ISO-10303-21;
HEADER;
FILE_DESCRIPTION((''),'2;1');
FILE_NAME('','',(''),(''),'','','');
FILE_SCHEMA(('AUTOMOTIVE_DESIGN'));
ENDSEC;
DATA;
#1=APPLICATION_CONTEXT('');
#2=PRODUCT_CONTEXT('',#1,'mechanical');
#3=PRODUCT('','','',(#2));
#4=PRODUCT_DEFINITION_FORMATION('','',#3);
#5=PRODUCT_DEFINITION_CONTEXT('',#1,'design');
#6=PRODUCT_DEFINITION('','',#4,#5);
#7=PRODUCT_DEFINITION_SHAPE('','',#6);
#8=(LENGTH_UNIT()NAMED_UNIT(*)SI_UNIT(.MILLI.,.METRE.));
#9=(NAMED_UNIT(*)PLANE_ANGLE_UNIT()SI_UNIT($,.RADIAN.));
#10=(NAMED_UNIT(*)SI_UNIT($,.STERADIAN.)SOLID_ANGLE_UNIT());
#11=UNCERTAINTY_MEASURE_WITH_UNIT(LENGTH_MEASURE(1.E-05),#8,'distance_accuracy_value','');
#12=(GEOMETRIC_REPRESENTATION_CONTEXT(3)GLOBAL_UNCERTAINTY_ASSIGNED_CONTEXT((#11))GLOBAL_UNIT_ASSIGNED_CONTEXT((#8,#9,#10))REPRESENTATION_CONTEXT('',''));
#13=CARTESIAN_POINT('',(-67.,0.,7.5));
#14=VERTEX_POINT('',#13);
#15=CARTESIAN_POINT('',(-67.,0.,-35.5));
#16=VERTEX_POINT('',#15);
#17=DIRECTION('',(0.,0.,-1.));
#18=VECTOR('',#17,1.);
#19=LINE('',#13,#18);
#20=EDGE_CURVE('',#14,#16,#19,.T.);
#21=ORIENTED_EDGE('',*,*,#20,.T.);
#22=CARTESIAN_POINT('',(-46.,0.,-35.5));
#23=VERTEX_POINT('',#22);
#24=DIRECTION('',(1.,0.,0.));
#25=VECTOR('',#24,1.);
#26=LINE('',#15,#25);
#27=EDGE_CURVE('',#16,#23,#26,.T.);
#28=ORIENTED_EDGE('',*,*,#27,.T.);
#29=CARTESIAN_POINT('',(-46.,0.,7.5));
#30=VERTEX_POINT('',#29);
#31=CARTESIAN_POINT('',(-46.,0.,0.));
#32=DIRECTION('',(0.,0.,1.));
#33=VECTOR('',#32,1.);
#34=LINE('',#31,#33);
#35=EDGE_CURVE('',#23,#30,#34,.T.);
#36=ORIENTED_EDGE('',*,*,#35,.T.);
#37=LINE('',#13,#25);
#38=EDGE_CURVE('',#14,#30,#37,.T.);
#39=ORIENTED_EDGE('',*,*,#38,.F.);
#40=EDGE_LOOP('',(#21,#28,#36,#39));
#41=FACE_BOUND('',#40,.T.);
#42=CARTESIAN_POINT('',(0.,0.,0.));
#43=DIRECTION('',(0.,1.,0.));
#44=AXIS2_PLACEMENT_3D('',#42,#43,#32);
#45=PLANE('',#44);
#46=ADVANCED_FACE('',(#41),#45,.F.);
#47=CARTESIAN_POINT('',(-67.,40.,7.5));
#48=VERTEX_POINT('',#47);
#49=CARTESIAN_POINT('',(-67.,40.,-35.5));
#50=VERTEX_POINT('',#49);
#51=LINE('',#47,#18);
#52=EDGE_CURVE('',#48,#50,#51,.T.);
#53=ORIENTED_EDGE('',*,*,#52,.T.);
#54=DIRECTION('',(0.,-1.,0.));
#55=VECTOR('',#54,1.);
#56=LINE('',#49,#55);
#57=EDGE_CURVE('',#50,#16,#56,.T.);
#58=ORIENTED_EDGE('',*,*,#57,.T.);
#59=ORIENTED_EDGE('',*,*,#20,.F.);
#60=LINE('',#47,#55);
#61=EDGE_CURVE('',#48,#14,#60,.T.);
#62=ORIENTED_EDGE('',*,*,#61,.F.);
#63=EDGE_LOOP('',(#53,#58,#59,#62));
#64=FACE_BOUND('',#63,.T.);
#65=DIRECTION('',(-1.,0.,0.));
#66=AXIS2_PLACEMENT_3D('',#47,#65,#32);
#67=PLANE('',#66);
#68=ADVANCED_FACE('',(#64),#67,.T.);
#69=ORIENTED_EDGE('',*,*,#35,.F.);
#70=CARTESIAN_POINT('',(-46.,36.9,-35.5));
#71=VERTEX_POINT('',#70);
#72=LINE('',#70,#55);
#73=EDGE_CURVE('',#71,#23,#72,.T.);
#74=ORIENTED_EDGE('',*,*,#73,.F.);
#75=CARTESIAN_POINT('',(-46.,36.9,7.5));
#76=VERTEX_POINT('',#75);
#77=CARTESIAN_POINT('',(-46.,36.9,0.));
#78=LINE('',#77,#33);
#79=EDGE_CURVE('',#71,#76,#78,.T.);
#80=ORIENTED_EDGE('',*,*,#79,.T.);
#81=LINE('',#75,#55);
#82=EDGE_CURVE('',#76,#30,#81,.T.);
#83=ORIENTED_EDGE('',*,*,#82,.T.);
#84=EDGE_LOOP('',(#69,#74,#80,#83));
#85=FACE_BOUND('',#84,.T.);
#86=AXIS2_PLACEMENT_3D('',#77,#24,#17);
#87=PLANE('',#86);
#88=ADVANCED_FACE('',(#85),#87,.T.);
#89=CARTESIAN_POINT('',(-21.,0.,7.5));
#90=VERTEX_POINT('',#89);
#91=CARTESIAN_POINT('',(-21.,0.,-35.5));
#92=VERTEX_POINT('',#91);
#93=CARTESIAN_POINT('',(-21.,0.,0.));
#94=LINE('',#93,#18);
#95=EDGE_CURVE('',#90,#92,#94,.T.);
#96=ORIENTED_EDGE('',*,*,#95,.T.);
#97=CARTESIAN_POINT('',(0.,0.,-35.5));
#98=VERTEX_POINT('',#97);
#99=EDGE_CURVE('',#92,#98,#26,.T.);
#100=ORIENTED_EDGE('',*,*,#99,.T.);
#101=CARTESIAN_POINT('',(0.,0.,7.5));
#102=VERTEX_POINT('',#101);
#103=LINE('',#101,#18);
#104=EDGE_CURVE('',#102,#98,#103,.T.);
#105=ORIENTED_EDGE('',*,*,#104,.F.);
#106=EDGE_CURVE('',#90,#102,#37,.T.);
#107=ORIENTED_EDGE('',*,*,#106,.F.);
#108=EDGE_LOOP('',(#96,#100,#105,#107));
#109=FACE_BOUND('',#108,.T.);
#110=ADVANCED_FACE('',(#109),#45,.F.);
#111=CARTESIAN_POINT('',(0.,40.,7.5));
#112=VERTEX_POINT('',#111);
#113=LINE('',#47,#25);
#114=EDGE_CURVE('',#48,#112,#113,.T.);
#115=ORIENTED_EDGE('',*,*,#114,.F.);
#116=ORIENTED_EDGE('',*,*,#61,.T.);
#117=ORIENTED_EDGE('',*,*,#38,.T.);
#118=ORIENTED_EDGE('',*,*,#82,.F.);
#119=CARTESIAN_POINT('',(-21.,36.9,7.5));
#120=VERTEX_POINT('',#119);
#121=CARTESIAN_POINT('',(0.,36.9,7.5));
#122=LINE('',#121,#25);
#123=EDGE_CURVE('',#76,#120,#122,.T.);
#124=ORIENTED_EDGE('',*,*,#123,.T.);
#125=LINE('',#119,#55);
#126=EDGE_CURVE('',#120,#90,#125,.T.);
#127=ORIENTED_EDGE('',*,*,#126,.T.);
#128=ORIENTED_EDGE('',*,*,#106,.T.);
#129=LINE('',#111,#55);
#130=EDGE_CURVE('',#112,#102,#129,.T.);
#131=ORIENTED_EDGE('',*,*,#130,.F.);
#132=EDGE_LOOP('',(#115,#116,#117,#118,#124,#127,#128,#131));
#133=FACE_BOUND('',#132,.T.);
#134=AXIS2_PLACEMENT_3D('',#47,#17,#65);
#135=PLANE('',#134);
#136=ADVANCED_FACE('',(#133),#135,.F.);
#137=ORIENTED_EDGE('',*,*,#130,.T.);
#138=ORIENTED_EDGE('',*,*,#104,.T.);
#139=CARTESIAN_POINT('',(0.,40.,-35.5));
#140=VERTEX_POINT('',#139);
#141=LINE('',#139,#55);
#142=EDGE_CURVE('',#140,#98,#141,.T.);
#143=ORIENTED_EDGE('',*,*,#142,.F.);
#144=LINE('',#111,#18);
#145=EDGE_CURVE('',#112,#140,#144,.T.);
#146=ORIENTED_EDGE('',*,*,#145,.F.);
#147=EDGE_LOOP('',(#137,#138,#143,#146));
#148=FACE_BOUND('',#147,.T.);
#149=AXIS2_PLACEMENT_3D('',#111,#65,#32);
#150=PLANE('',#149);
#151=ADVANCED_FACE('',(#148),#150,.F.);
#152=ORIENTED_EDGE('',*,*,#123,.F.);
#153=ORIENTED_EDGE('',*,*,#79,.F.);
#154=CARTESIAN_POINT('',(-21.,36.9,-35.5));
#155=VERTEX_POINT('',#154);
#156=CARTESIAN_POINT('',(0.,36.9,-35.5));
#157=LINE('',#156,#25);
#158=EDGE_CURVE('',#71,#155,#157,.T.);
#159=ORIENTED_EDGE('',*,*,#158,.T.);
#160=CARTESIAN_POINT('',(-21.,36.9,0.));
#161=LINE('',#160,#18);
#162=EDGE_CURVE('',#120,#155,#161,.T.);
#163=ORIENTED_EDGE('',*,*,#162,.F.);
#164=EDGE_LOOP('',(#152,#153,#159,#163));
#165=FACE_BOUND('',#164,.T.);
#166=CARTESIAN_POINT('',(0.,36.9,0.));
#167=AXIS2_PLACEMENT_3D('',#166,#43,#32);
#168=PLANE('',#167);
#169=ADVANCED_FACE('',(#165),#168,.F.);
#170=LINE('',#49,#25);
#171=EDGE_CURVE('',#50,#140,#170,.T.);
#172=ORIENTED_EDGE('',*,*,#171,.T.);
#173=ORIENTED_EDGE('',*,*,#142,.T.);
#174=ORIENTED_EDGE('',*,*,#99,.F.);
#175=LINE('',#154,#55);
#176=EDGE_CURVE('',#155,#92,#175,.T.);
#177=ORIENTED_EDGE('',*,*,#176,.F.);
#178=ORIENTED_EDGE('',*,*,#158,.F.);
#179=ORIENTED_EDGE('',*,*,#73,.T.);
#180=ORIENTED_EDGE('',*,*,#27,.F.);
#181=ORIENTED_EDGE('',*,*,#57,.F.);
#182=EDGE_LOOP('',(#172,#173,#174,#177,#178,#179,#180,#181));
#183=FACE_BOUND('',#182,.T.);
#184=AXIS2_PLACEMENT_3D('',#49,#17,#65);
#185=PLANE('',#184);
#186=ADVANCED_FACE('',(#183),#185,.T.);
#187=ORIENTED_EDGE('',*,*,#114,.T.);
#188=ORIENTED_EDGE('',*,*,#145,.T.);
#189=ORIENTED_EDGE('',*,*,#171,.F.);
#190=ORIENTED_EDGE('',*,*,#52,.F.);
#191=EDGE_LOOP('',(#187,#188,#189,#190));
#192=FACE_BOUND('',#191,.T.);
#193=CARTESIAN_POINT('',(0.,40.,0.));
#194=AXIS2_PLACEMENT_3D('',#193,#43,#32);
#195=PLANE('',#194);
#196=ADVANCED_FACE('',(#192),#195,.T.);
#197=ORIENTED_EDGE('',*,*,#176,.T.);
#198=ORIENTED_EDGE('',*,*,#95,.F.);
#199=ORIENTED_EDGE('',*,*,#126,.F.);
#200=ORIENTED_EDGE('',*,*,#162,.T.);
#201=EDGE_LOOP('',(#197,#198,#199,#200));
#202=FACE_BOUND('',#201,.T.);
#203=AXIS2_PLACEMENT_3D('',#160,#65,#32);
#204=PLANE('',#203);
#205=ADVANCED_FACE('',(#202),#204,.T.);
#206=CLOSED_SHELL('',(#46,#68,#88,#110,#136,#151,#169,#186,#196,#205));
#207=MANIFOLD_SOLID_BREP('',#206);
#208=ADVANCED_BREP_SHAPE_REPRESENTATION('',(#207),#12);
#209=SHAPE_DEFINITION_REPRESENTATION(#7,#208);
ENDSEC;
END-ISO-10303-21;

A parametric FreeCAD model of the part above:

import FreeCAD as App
import Part
import Sketcher
Q = App.Units.Quantity


def add_polygon(sketch, points):
    """Adds a closed chain of lines whose ends are joined by coincident constraints."""
    first, n = sketch.GeometryCount, len(points)
    for a, b in zip(points, points[1:] + points[:1]):
        sketch.addGeometry(Part.LineSegment(App.Vector(*a, 0), App.Vector(*b, 0)), False)
    for i in range(n):
        sketch.addConstraint(Sketcher.Constraint("Coincident", first + i, 2, first + (i + 1) % n, 1))

doc = App.newDocument("Part")
params = doc.addObject("Spreadsheet::Sheet", "Params")
for row, (alias, value) in enumerate([
    ("sketch1_width", "67 mm"),
    ("sketch1_height", "43 mm"),
    ("pad1_length", "40 mm"),
    ("sketch2_width", "25 mm"),
    ("sketch2_height", "43 mm"),
    ("pocket1_length", "36.9 mm"),
], start=1):
    params.set(f"A{row}", alias)
    params.set(f"B{row}", "=" + value)
    params.setAlias(f"B{row}", alias)

body = doc.addObject("PartDesign::Body", "Body")

# Sketch on XZ plane
sketch1 = doc.addObject("Sketcher::SketchObject", "Sketch")
body.addObject(sketch1)
sketch1.AttachmentSupport = (doc.XZ_Plane, [""])
sketch1.MapMode = "FlatFace"
add_polygon(sketch1, [(0, 7.5), (0, -35.5), (-67, -35.5), (-67, 7.5)])  # lines 0-3
sketch1.addConstraint([
    Sketcher.Constraint("Vertical", 0),
    Sketcher.Constraint("Horizontal", 1),
    Sketcher.Constraint("Vertical", 2),
    Sketcher.Constraint("Horizontal", 3),
    Sketcher.Constraint("PointOnObject", 0, 2, -2),
    Sketcher.Constraint("DistanceX", 1, 2, 1, 1, Q("67 mm")),
    Sketcher.Constraint("DistanceY", 0, 2, 0, 1, Q("43 mm")),
    Sketcher.Constraint("DistanceY", 0, 2, -1, 1, Q("35.5 mm")),
])
sketch1.setExpression("Constraints[9]", "Params.sketch1_width")
sketch1.setExpression("Constraints[10]", "Params.sketch1_height")
pad1 = doc.addObject("PartDesign::Pad", "Pad")
body.addObject(pad1)
pad1.Profile = sketch1
pad1.setExpression("Length", "Params.pad1_length")
pad1.Reversed = True

# Sketch on XZ plane
sketch2 = doc.addObject("Sketcher::SketchObject", "Sketch001")
body.addObject(sketch2)
sketch2.AttachmentSupport = (doc.XZ_Plane, [""])
sketch2.MapMode = "FlatFace"
add_polygon(sketch2, [(-21, 7.5), (-21, -35.5), (-46, -35.5), (-46, 7.5)])  # lines 0-3
sketch2.addConstraint([
    Sketcher.Constraint("Vertical", 0),
    Sketcher.Constraint("Horizontal", 1),
    Sketcher.Constraint("Vertical", 2),
    Sketcher.Constraint("Horizontal", 3),
    Sketcher.Constraint("DistanceX", 1, 2, 1, 1, Q("25 mm")),
    Sketcher.Constraint("DistanceY", 0, 2, 0, 1, Q("43 mm")),
    Sketcher.Constraint("DistanceX", 0, 2, -1, 1, Q("21 mm")),
    Sketcher.Constraint("DistanceY", 0, 2, -1, 1, Q("35.5 mm")),
])
sketch2.setExpression("Constraints[8]", "Params.sketch2_width")
sketch2.setExpression("Constraints[9]", "Params.sketch2_height")
pocket1 = doc.addObject("PartDesign::Pocket", "Pocket")
body.addObject(pocket1)
pocket1.Profile = sketch2
pocket1.setExpression("Length", "Params.pocket1_length")

doc.recompute()
